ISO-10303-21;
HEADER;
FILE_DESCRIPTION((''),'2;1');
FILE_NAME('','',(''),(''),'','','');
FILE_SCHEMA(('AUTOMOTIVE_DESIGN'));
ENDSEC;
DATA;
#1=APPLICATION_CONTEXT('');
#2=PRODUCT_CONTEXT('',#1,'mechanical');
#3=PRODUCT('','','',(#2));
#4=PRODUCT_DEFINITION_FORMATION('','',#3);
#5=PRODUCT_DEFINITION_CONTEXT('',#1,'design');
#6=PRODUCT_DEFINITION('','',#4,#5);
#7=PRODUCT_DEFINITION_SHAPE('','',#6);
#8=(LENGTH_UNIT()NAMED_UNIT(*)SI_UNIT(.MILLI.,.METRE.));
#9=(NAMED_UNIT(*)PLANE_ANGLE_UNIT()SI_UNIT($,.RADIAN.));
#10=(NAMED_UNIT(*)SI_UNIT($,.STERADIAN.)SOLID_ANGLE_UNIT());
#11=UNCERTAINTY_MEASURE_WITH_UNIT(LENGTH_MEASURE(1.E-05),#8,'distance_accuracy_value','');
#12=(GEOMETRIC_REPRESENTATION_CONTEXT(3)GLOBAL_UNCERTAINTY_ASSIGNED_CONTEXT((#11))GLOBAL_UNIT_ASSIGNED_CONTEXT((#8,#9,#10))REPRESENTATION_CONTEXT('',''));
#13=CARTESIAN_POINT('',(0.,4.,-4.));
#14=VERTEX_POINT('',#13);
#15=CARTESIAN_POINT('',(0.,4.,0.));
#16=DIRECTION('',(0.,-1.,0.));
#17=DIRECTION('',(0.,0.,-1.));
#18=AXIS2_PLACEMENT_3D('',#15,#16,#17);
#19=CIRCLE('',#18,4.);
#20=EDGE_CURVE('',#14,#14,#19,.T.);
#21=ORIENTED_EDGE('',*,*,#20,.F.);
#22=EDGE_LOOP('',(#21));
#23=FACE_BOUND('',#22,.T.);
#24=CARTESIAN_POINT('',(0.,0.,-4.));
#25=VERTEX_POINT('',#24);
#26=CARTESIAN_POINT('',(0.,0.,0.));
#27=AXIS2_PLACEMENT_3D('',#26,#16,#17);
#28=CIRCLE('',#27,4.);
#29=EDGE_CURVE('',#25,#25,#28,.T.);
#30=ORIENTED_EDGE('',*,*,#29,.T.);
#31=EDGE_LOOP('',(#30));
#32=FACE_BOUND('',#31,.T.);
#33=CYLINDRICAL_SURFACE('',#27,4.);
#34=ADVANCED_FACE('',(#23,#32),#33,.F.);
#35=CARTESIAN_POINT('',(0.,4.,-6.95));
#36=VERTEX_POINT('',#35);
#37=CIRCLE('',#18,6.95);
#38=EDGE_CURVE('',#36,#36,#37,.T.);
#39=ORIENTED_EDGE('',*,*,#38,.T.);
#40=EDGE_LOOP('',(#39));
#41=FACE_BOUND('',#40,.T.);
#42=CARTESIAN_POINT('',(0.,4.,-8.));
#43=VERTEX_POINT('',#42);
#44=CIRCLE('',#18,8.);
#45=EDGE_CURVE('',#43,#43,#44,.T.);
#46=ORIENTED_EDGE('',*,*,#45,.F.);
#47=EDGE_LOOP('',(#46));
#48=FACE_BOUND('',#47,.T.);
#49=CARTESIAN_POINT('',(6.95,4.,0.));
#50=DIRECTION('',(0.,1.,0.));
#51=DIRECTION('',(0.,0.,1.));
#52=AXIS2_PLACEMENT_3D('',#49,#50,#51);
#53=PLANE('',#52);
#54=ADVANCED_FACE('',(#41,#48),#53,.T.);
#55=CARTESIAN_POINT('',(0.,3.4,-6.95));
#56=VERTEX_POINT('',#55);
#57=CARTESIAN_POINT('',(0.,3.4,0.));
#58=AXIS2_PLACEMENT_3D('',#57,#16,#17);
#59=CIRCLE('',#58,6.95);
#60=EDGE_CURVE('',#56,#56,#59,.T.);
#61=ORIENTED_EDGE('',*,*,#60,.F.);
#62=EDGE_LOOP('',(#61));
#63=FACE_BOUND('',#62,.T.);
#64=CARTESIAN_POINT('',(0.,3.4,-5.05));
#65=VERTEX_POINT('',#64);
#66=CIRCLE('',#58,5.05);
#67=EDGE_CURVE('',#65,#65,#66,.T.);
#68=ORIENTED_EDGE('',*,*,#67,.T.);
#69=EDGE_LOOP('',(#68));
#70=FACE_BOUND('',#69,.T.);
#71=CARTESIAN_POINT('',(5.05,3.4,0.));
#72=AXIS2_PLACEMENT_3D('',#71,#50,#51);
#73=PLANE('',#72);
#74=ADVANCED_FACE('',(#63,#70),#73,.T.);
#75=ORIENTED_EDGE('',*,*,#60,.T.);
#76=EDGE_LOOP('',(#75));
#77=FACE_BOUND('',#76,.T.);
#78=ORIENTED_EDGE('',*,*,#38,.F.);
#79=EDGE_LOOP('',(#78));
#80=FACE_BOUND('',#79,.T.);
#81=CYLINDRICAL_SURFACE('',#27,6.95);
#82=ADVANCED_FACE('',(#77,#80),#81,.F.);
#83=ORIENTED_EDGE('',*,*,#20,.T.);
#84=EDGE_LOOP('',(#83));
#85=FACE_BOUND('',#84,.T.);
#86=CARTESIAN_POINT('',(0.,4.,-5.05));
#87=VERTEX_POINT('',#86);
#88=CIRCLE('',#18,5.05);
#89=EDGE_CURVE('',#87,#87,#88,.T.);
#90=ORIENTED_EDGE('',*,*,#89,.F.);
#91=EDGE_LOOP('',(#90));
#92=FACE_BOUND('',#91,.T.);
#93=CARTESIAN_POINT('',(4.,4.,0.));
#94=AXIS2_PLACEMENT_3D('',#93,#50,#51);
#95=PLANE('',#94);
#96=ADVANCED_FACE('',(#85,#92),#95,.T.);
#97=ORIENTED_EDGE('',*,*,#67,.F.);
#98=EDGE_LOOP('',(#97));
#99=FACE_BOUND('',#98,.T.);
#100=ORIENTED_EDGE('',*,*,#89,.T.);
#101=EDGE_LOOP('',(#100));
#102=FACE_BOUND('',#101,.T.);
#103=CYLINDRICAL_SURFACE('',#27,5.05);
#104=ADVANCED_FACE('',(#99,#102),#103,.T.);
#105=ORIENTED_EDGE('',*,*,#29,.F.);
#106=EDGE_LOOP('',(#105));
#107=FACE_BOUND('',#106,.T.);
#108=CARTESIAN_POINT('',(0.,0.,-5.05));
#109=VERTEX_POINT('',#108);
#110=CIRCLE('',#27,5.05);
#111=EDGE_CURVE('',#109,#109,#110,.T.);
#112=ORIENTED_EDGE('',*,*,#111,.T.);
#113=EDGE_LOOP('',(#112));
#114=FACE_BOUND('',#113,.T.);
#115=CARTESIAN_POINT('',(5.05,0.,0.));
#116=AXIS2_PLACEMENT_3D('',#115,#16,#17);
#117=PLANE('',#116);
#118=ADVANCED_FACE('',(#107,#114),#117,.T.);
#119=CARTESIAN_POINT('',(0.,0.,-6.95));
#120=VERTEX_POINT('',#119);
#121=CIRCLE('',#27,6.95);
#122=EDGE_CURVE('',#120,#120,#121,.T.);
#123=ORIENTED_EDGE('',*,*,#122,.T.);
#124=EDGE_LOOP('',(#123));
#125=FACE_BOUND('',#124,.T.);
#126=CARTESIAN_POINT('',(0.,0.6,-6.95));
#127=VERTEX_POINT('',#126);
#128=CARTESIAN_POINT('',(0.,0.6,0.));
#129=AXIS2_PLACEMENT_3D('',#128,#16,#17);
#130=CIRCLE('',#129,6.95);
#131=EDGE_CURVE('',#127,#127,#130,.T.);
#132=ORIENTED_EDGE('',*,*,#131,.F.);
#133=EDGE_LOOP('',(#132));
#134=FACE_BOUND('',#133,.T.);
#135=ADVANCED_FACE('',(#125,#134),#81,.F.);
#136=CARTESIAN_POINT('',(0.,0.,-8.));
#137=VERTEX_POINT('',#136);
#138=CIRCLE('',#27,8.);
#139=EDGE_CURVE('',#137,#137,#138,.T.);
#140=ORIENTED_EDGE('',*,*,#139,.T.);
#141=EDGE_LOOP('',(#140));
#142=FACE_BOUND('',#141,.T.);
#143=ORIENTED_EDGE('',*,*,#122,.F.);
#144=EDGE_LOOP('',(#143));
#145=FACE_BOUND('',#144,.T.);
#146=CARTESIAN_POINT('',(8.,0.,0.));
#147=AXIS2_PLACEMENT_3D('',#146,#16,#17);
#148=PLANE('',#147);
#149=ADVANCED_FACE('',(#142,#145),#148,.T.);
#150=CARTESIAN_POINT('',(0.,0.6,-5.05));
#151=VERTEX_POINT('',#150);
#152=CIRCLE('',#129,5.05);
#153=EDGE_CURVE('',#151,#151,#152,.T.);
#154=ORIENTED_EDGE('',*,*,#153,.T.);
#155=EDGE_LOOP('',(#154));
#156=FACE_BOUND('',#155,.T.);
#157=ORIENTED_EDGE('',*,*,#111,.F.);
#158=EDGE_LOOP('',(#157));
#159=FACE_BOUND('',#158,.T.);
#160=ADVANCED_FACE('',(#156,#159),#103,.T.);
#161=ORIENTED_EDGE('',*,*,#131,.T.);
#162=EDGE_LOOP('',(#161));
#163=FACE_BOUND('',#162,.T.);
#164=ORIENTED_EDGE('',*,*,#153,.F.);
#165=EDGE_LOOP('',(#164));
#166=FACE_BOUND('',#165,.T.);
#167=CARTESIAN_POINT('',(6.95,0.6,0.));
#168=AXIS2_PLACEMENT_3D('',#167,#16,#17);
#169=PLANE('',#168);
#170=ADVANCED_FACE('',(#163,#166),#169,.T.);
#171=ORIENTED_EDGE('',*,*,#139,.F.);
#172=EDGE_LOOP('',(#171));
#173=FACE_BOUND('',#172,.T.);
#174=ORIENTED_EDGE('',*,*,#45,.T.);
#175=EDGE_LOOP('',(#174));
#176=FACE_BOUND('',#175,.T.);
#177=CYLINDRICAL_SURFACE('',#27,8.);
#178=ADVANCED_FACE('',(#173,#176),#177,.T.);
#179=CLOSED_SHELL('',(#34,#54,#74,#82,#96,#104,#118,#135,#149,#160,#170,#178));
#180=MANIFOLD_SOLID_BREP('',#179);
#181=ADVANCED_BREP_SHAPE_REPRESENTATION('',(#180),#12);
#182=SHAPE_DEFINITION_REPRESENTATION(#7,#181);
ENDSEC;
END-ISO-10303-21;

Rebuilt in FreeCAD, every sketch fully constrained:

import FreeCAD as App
import Part
import Sketcher

V = App.Vector

doc = App.newDocument("Part")
params = doc.addObject("Spreadsheet::Sheet", "Params")
for row, (alias, value) in enumerate([
    ("sketch1_height", "4 mm"),
    ("sketch1_width", "1.9 mm"),
    ("sketch1_height2", "0.6 mm"),
    ("revolution_angle", "360 deg"),
], start=1):
    params.set(f"A{row}", alias)
    params.set(f"B{row}", "=" + value)
    params.setAlias(f"B{row}", alias)

body = doc.addObject("PartDesign::Body", "Body")

# Sketch on XY plane
sketch1 = body.newObject("Sketcher::SketchObject", "Sketch")
sketch1.AttachmentSupport = (doc.getObject("XY_Plane"), [""])
sketch1.MapMode = "FlatFace"
sketch1.addGeometry([
    Part.LineSegment(V(4, 4, 0), V(4, 0, 0)),  # 0
    Part.LineSegment(V(4, 0, 0), V(5, 0, 0)),  # 1
    Part.LineSegment(V(5, 0, 0), V(5, 0.6, 0)),  # 2
    Part.LineSegment(V(5, 0.6, 0), V(7, 0.6, 0)),  # 3
    Part.LineSegment(V(7, 0.6, 0), V(7, 0, 0)),  # 4
    Part.LineSegment(V(7, 0, 0), V(8, 0, 0)),  # 5
    Part.LineSegment(V(8, 0, 0), V(8, 4, 0)),  # 6
    Part.LineSegment(V(8, 4, 0), V(7, 4, 0)),  # 7
    Part.LineSegment(V(7, 4, 0), V(7, 3.4, 0)),  # 8
    Part.LineSegment(V(7, 3.4, 0), V(5, 3.4, 0)),  # 9
    Part.LineSegment(V(5, 3.4, 0), V(5, 4, 0)),  # 10
    Part.LineSegment(V(5, 4, 0), V(4, 4, 0)),  # 11
], False)
sketch1.addConstraint([
    Sketcher.Constraint("Coincident", 0, 2, 1, 1),
    Sketcher.Constraint("Coincident", 1, 2, 2, 1),
    Sketcher.Constraint("Coincident", 2, 2, 3, 1),
    Sketcher.Constraint("Coincident", 3, 2, 4, 1),
    Sketcher.Constraint("Coincident", 4, 2, 5, 1),
    Sketcher.Constraint("Coincident", 5, 2, 6, 1),
    Sketcher.Constraint("Coincident", 6, 2, 7, 1),
    Sketcher.Constraint("Coincident", 7, 2, 8, 1),
    Sketcher.Constraint("Coincident", 8, 2, 9, 1),
    Sketcher.Constraint("Coincident", 9, 2, 10, 1),
    Sketcher.Constraint("Coincident", 10, 2, 11, 1),
    Sketcher.Constraint("Coincident", 11, 2, 0, 1),
    Sketcher.Constraint("Vertical", 0),
    Sketcher.Constraint("Horizontal", 1),
    Sketcher.Constraint("Vertical", 2),
    Sketcher.Constraint("Horizontal", 3),
    Sketcher.Constraint("Vertical", 4),
    Sketcher.Constraint("Horizontal", 5),
    Sketcher.Constraint("Vertical", 6),
    Sketcher.Constraint("Horizontal", 7),
    Sketcher.Constraint("Vertical", 8),
    Sketcher.Constraint("Horizontal", 9),
    Sketcher.Constraint("Vertical", 10),
    Sketcher.Constraint("Horizontal", 11),
    Sketcher.Constraint("PointOnObject", 0, 2, -1),
    Sketcher.Constraint("PointOnObject", 4, 2, -1),
    Sketcher.Constraint("Horizontal", 7, 2, 10, 2),
    Sketcher.Constraint("Vertical", 4, 2, 7, 2),
    Sketcher.Constraint("Vertical", 2, 2, 9, 2),
    Sketcher.Constraint("Equal", 1, 5),
    Sketcher.Constraint("Equal", 4, 8),
    Sketcher.Constraint("DistanceY", 0, 2, 0, 1, 4.0),
    Sketcher.Constraint("DistanceX", 3, 1, 3, 2, 1.9),
    Sketcher.Constraint("DistanceY", 2, 1, 2, 2, 0.6),
    Sketcher.Constraint("DistanceX", -1, 1, 0, 2, 4.0),
    Sketcher.Constraint("DistanceX", -1, 1, 5, 2, 8.0),
])
sketch1.setExpression("Constraints[31]", "Params.sketch1_height")
sketch1.setExpression("Constraints[32]", "Params.sketch1_width")
sketch1.setExpression("Constraints[33]", "Params.sketch1_height2")
revolution = body.newObject("PartDesign::Revolution", "Revolution")
revolution.Profile = sketch1
revolution.ReferenceAxis = (sketch1, ["V_Axis"])
revolution.setExpression("Angle", "Params.revolution_angle")

doc.recompute()
